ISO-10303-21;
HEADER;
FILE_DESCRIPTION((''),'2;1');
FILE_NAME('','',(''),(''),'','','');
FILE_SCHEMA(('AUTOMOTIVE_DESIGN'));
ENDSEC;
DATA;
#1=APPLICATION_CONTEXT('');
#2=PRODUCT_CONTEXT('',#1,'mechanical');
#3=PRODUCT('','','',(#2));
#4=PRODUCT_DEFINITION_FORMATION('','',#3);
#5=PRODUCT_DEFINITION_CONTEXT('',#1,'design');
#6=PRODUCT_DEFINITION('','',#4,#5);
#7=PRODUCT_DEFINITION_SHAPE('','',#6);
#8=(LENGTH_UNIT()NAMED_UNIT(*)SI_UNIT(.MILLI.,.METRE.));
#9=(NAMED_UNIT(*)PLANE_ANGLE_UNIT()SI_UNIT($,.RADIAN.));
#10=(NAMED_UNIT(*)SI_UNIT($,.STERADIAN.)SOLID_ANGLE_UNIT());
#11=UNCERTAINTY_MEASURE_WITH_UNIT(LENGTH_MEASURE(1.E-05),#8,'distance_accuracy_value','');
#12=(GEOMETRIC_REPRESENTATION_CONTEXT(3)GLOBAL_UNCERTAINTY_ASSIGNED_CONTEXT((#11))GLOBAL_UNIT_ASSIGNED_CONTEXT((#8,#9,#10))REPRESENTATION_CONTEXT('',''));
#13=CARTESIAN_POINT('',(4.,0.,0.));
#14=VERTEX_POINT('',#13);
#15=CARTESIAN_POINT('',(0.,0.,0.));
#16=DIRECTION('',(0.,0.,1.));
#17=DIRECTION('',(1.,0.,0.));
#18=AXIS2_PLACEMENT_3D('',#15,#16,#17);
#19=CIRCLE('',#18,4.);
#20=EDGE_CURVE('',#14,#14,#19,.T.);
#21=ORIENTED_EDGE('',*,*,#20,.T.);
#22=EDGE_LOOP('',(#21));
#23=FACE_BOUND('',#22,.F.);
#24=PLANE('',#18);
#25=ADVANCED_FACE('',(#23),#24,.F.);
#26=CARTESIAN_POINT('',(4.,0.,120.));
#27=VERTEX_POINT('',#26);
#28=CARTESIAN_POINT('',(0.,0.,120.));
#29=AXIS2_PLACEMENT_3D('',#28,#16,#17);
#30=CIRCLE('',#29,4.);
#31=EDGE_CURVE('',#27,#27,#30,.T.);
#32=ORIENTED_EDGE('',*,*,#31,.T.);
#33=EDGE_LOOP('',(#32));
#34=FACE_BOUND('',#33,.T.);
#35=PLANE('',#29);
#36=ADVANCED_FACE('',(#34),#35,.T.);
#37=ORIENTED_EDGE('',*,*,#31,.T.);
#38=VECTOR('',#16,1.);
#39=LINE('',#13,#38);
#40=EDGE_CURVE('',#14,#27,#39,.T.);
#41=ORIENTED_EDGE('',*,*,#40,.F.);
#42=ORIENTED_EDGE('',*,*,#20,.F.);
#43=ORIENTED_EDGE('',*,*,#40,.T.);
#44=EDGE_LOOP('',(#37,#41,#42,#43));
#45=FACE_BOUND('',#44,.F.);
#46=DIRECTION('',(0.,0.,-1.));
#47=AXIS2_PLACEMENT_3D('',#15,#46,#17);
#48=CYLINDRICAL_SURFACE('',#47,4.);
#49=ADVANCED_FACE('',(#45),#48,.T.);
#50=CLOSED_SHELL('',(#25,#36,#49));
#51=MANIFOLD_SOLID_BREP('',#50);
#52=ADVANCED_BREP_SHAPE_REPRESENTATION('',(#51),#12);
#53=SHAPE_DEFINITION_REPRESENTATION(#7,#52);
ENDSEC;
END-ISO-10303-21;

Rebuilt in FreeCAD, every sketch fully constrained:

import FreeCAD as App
import Part
import Sketcher

V = App.Vector

doc = App.newDocument("Part")
body = doc.addObject("PartDesign::Body", "Body")

# Sketch on XY plane
sketch1 = body.newObject("Sketcher::SketchObject", "Sketch")
sketch1.AttachmentSupport = (doc.getObject("XY_Plane"), [""])
sketch1.MapMode = "FlatFace"
sketch1.addGeometry(Part.Circle(V(0, 0, 0), V(0, 0, 1), 4), False)
sketch1.addConstraint([
    Sketcher.Constraint("Coincident", 0, 3, -1, 1),
    Sketcher.Constraint("Diameter", 0, 8.0),
])
pad1 = body.newObject("PartDesign::Pad", "Pad")
pad1.Profile = sketch1
pad1.Length = 120

doc.recompute()
